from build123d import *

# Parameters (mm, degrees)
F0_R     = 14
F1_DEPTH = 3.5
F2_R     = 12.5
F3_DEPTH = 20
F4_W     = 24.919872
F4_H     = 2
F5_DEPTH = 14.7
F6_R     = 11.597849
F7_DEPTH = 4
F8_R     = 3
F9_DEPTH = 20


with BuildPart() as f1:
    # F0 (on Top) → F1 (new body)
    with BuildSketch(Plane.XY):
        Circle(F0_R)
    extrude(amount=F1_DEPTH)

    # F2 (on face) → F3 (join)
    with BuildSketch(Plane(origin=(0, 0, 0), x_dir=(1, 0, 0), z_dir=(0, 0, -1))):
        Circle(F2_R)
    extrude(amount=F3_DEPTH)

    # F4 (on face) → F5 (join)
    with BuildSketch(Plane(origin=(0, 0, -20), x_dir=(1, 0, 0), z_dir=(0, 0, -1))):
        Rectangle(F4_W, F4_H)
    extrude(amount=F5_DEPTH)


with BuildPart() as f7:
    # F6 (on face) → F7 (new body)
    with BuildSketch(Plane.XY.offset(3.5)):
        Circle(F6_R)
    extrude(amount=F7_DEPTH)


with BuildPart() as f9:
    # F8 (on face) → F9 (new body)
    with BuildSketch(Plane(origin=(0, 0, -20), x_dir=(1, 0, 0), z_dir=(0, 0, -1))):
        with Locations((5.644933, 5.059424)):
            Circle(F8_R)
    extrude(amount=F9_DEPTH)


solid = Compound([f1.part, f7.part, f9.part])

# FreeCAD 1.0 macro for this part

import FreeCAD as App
import Part
import Sketcher
from FreeCAD import Vector


def add_polygon(sketch, points):
    """Adds a closed chain of lines whose ends are joined by coincident constraints."""
    first, n = sketch.GeometryCount, len(points)
    for a, b in zip(points, points[1:] + points[:1]):
        sketch.addGeometry(Part.LineSegment(App.Vector(*a, 0), App.Vector(*b, 0)), False)
    for i in range(n):
        sketch.addConstraint(Sketcher.Constraint("Coincident", first + i, 2, first + (i + 1) % n, 1))

doc = App.newDocument("Part")
body = doc.addObject("PartDesign::Body", "Body")

sketch1 = body.newObject("Sketcher::SketchObject", "Sketch")
sketch1.AttachmentSupport = (doc.getObject("XY_Plane"), [""])
sketch1.MapMode = "FlatFace"
sketch1.addGeometry(Part.Circle(Vector(0, 0, 0), Vector(0, 0, 1), 14), False)
sketch1.addConstraint([
    Sketcher.Constraint("Coincident", 0, 3, -1, 1),
    Sketcher.Constraint("Diameter", 0, 28.0),
])
pad1 = body.newObject("PartDesign::Pad", "Pad")
pad1.Profile = sketch1
pad1.Length = 3.5

sketch2 = body.newObject("Sketcher::SketchObject", "Sketch001")
sketch2.AttachmentSupport = (doc.getObject("XY_Plane"), [""])
sketch2.MapMode = "FlatFace"
sketch2.addGeometry(Part.Circle(Vector(0, 0, 0), Vector(0, 0, 1), 12), False)
sketch2.addConstraint([
    Sketcher.Constraint("Coincident", 0, 3, -1, 1),
    Sketcher.Constraint("Diameter", 0, 25.0),
])
pad2 = body.newObject("PartDesign::Pad", "Pad001")
pad2.Profile = sketch2
pad2.Length = 20
pad2.Reversed = True

sketch3 = body.newObject("Sketcher::SketchObject", "Sketch002")
sketch3.AttachmentSupport = (doc.getObject("XY_Plane"), [""])
sketch3.MapMode = "FlatFace"
sketch3.AttachmentOffset = App.Placement(Vector(0, 0, -20), App.Rotation())
add_polygon(sketch3, [(-12.5, -1), (-12.5, 1), (12.5, 1), (12.5, -1)])
sketch3.addConstraint([
    Sketcher.Constraint("Vertical", 0),
    Sketcher.Constraint("Horizontal", 1),
    Sketcher.Constraint("Vertical", 2),
    Sketcher.Constraint("Horizontal", 3),
    Sketcher.Constraint("Symmetric", 0, 2, 2, 2, -1, 1),
    Sketcher.Constraint("DistanceY", 0, 1, 0, 2, 2.0),
    Sketcher.Constraint("DistanceX", 1, 1, 1, 2, 24.919872),
])
pad3 = body.newObject("PartDesign::Pad", "Pad002")
pad3.Profile = sketch3
pad3.Length = 14.7
pad3.Reversed = True
body2 = doc.addObject("PartDesign::Body", "Body001")

sketch4 = body2.newObject("Sketcher::SketchObject", "Sketch003")
sketch4.AttachmentSupport = (doc.getObject("XY_Plane001"), [""])
sketch4.MapMode = "FlatFace"
sketch4.AttachmentOffset = App.Placement(Vector(0, 0, 3.5), App.Rotation())
sketch4.addGeometry(Part.Circle(Vector(0, 0, 0), Vector(0, 0, 1), 12), False)
sketch4.addConstraint([
    Sketcher.Constraint("Coincident", 0, 3, -1, 1),
    Sketcher.Constraint("Diameter", 0, 23.195698),
])
pad4 = body2.newObject("PartDesign::Pad", "Pad003")
pad4.Profile = sketch4
pad4.Length = 4
body3 = doc.addObject("PartDesign::Body", "Body002")

sketch5 = body3.newObject("Sketcher::SketchObject", "Sketch004")
sketch5.AttachmentSupport = (doc.getObject("XY_Plane002"), [""])
sketch5.MapMode = "FlatFace"
sketch5.AttachmentOffset = App.Placement(Vector(0, 0, -20), App.Rotation())
sketch5.addGeometry(Part.Circle(Vector(5.6, -5.1, 0), Vector(0, 0, 1), 3), False)
sketch5.addConstraint([
    Sketcher.Constraint("Diameter", 0, 6.0),
    Sketcher.Constraint("DistanceX", -1, 1, 0, 3, 5.644933),
    Sketcher.Constraint("DistanceY", 0, 3, -1, 1, 5.059424),
])
pad5 = body3.newObject("PartDesign::Pad", "Pad004")
pad5.Profile = sketch5
pad5.Length = 20
pad5.Reversed = True

doc.recompute()
